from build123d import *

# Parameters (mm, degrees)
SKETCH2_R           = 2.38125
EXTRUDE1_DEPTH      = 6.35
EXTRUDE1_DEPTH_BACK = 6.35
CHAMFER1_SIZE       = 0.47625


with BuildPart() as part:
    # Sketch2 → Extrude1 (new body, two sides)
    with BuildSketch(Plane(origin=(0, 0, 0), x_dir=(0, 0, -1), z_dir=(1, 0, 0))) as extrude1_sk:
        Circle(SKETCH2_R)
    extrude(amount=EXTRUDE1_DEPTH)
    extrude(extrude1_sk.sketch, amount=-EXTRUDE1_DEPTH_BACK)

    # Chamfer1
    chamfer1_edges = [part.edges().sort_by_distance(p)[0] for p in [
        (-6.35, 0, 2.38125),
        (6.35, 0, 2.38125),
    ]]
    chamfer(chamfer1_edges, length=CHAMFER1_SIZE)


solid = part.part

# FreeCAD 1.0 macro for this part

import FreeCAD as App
import Part
import Sketcher
Q = App.Units.Quantity


def edges_at(feature, points):
    """Names of the edges that pass closest to the given points."""
    edges = feature.Shape.Edges
    near = lambda p: min(range(len(edges)), key=lambda i: edges[i].distToShape(Part.Vertex(*p))[0])
    return sorted({f"Edge{near(p) + 1}" for p in points})

doc = App.newDocument("Part")
params = doc.addObject("Spreadsheet::Sheet", "Params")
for row, (alias, value) in enumerate([
    ("sketch1_diameter", "0.1875 in"),
    ("pad1_length", "0.25 in"),
    ("pad1_length2", "0.25 in"),
    ("chamfer_size", "0.47625 mm"),
], start=1):
    params.set(f"A{row}", alias)
    params.set(f"B{row}", "=" + value)
    params.setAlias(f"B{row}", alias)

body = doc.addObject("PartDesign::Body", "Body")

# Sketch on YZ plane
sketch1 = doc.addObject("Sketcher::SketchObject", "Sketch")
body.addObject(sketch1)
sketch1.AttachmentSupport = (doc.YZ_Plane, [""])
sketch1.MapMode = "FlatFace"
sketch1.addGeometry(Part.Circle(App.Vector(0, 0, 0), App.Vector(0, 0, 1), 2.38125), False)
sketch1.addConstraint([
    Sketcher.Constraint("Coincident", 0, 3, -1, 1),
    Sketcher.Constraint("Diameter", 0, Q("0.1875 in")),
])
sketch1.setExpression("Constraints[1]", "Params.sketch1_diameter")
pad1 = doc.addObject("PartDesign::Pad", "Pad")
body.addObject(pad1)
pad1.Profile = sketch1
pad1.Type = "TwoLengths"
pad1.setExpression("Length", "Params.pad1_length")
pad1.setExpression("Length2", "Params.pad1_length2")
doc.recompute()

chamfer = doc.addObject("PartDesign::Chamfer", "Chamfer")
body.addObject(chamfer)
chamfer.Base = (pad1, edges_at(pad1, [(-6.35, 0, 2.381), (6.35, 0, 2.381)]))
chamfer.setExpression("Size", "Params.chamfer_size")

doc.recompute()
